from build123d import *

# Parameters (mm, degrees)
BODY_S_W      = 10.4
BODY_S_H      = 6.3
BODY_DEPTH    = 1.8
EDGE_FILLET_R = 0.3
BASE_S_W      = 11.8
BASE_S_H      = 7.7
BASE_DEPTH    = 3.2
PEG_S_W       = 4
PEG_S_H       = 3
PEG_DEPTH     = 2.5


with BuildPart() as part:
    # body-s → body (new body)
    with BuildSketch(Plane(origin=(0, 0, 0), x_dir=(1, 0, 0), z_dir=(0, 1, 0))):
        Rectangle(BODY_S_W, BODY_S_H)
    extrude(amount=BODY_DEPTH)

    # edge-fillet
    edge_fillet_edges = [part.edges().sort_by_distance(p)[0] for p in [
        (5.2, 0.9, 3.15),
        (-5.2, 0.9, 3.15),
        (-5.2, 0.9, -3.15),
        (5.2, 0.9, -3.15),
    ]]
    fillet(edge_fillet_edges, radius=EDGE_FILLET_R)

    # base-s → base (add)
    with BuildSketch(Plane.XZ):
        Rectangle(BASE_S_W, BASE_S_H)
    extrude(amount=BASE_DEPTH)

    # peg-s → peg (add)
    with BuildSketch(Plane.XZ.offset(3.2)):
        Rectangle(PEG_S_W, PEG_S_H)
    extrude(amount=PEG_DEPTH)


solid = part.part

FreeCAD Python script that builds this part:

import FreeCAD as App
import Part
import Sketcher

V = App.Vector
Q = App.Units.Quantity


def edges_at(feature, points):
    """Names of the edges that pass closest to the given points."""
    edges = feature.Shape.Edges
    near = lambda p: min(range(len(edges)), key=lambda i: edges[i].distToShape(Part.Vertex(*p))[0])
    return sorted({f"Edge{near(p) + 1}" for p in points})

doc = App.newDocument("Part")
params = doc.addObject("Spreadsheet::Sheet", "Params")
for row, (alias, value) in enumerate([
    ("sketch1_width", "10.4 mm"),
    ("sketch1_height", "6.3 mm"),
    ("pad1_length", "1.8 mm"),
    ("fillet_radius", "0.3 mm"),
    ("sketch2_width", "11.8 mm"),
    ("sketch2_height", "7.7 mm"),
    ("pad2_length", "3.2 mm"),
    ("sketch3_width", "4 mm"),
    ("sketch3_height", "3 mm"),
    ("pad3_length", "2.5 mm"),
], start=1):
    params.set(f"A{row}", alias)
    params.set(f"B{row}", "=" + value)
    params.setAlias(f"B{row}", alias)

body = doc.addObject("PartDesign::Body", "Body")

sketch1 = doc.addObject("Sketcher::SketchObject", "Sketch")
body.addObject(sketch1)
sketch1.AttachmentSupport = (doc.XZ_Plane, [""])
sketch1.MapMode = "FlatFace"
sketch1.addGeometry([
    Part.LineSegment(V(-5, -3, 0), V(-5, 3, 0)),
    Part.LineSegment(V(-5, 3, 0), V(5, 3, 0)),
    Part.LineSegment(V(5, 3, 0), V(5, -3, 0)),
    Part.LineSegment(V(5, -3, 0), V(-5, -3, 0)),
], False)
sketch1.addConstraint([
    Sketcher.Constraint("Coincident", 0, 2, 1, 1),
    Sketcher.Constraint("Coincident", 1, 2, 2, 1),
    Sketcher.Constraint("Coincident", 2, 2, 3, 1),
    Sketcher.Constraint("Coincident", 3, 2, 0, 1),
    Sketcher.Constraint("Vertical", 0),
    Sketcher.Constraint("Horizontal", 1),
    Sketcher.Constraint("Vertical", 2),
    Sketcher.Constraint("Horizontal", 3),
    Sketcher.Constraint("Symmetric", 0, 2, 2, 2, -1, 1),
    Sketcher.Constraint("DistanceX", 1, 1, 1, 2, Q("10.4 mm")),
    Sketcher.Constraint("DistanceY", 0, 1, 0, 2, Q("6.3 mm")),
])
sketch1.setExpression("Constraints[9]", "Params.sketch1_width")
sketch1.setExpression("Constraints[10]", "Params.sketch1_height")
pad1 = doc.addObject("PartDesign::Pad", "Pad")
body.addObject(pad1)
pad1.Profile = sketch1
pad1.setExpression("Length", "Params.pad1_length")
pad1.Reversed = True
doc.recompute()

fillet = doc.addObject("PartDesign::Fillet", "Fillet")
body.addObject(fillet)
fillet.Base = (pad1, edges_at(pad1, [
    (5.2, 0.9, 3.15),
    (-5.2, 0.9, 3.15),
    (-5.2, 0.9, -3.15),
    (5.2, 0.9, -3.15),
]))
fillet.setExpression("Radius", "Params.fillet_radius")

sketch2 = doc.addObject("Sketcher::SketchObject", "Sketch001")
body.addObject(sketch2)
sketch2.AttachmentSupport = (doc.XZ_Plane, [""])
sketch2.MapMode = "FlatFace"
sketch2.addGeometry([
    Part.LineSegment(V(-6, 4, 0), V(-6, -4, 0)),
    Part.LineSegment(V(-6, -4, 0), V(6, -4, 0)),
    Part.LineSegment(V(6, -4, 0), V(6, 4, 0)),
    Part.LineSegment(V(6, 4, 0), V(-6, 4, 0)),
], False)
sketch2.addConstraint([
    Sketcher.Constraint("Coincident", 0, 2, 1, 1),
    Sketcher.Constraint("Coincident", 1, 2, 2, 1),
    Sketcher.Constraint("Coincident", 2, 2, 3, 1),
    Sketcher.Constraint("Coincident", 3, 2, 0, 1),
    Sketcher.Constraint("Vertical", 0),
    Sketcher.Constraint("Horizontal", 1),
    Sketcher.Constraint("Vertical", 2),
    Sketcher.Constraint("Horizontal", 3),
    Sketcher.Constraint("Symmetric", 0, 2, 2, 2, -1, 1),
    Sketcher.Constraint("DistanceX", 1, 1, 1, 2, Q("11.8 mm")),
    Sketcher.Constraint("DistanceY", 0, 2, 0, 1, Q("7.7 mm")),
])
sketch2.setExpression("Constraints[9]", "Params.sketch2_width")
sketch2.setExpression("Constraints[10]", "Params.sketch2_height")
pad2 = doc.addObject("PartDesign::Pad", "Pad001")
body.addObject(pad2)
pad2.Profile = sketch2
pad2.setExpression("Length", "Params.pad2_length")

sketch3 = doc.addObject("Sketcher::SketchObject", "Sketch002")
body.addObject(sketch3)
sketch3.AttachmentSupport = (doc.XZ_Plane, [""])
sketch3.MapMode = "FlatFace"
sketch3.AttachmentOffset = App.Placement(V(0, 0, 3.2), App.Rotation())
sketch3.addGeometry([
    Part.LineSegment(V(-2, 1.5, 0), V(-2, -1.5, 0)),
    Part.LineSegment(V(-2, -1.5, 0), V(2, -1.5, 0)),
    Part.LineSegment(V(2, -1.5, 0), V(2, 1.5, 0)),
    Part.LineSegment(V(2, 1.5, 0), V(-2, 1.5, 0)),
], False)
sketch3.addConstraint([
    Sketcher.Constraint("Coincident", 0, 2, 1, 1),
    Sketcher.Constraint("Coincident", 1, 2, 2, 1),
    Sketcher.Constraint("Coincident", 2, 2, 3, 1),
    Sketcher.Constraint("Coincident", 3, 2, 0, 1),
    Sketcher.Constraint("Vertical", 0),
    Sketcher.Constraint("Horizontal", 1),
    Sketcher.Constraint("Vertical", 2),
    Sketcher.Constraint("Horizontal", 3),
    Sketcher.Constraint("Symmetric", 0, 2, 2, 2, -1, 1),
    Sketcher.Constraint("DistanceX", 1, 1, 1, 2, Q("4 mm")),
    Sketcher.Constraint("DistanceY", 0, 2, 0, 1, Q("3 mm")),
])
sketch3.setExpression("Constraints[9]", "Params.sketch3_width")
sketch3.setExpression("Constraints[10]", "Params.sketch3_height")
pad3 = doc.addObject("PartDesign::Pad", "Pad002")
body.addObject(pad3)
pad3.Profile = sketch3
pad3.setExpression("Length", "Params.pad3_length")

doc.recompute()
